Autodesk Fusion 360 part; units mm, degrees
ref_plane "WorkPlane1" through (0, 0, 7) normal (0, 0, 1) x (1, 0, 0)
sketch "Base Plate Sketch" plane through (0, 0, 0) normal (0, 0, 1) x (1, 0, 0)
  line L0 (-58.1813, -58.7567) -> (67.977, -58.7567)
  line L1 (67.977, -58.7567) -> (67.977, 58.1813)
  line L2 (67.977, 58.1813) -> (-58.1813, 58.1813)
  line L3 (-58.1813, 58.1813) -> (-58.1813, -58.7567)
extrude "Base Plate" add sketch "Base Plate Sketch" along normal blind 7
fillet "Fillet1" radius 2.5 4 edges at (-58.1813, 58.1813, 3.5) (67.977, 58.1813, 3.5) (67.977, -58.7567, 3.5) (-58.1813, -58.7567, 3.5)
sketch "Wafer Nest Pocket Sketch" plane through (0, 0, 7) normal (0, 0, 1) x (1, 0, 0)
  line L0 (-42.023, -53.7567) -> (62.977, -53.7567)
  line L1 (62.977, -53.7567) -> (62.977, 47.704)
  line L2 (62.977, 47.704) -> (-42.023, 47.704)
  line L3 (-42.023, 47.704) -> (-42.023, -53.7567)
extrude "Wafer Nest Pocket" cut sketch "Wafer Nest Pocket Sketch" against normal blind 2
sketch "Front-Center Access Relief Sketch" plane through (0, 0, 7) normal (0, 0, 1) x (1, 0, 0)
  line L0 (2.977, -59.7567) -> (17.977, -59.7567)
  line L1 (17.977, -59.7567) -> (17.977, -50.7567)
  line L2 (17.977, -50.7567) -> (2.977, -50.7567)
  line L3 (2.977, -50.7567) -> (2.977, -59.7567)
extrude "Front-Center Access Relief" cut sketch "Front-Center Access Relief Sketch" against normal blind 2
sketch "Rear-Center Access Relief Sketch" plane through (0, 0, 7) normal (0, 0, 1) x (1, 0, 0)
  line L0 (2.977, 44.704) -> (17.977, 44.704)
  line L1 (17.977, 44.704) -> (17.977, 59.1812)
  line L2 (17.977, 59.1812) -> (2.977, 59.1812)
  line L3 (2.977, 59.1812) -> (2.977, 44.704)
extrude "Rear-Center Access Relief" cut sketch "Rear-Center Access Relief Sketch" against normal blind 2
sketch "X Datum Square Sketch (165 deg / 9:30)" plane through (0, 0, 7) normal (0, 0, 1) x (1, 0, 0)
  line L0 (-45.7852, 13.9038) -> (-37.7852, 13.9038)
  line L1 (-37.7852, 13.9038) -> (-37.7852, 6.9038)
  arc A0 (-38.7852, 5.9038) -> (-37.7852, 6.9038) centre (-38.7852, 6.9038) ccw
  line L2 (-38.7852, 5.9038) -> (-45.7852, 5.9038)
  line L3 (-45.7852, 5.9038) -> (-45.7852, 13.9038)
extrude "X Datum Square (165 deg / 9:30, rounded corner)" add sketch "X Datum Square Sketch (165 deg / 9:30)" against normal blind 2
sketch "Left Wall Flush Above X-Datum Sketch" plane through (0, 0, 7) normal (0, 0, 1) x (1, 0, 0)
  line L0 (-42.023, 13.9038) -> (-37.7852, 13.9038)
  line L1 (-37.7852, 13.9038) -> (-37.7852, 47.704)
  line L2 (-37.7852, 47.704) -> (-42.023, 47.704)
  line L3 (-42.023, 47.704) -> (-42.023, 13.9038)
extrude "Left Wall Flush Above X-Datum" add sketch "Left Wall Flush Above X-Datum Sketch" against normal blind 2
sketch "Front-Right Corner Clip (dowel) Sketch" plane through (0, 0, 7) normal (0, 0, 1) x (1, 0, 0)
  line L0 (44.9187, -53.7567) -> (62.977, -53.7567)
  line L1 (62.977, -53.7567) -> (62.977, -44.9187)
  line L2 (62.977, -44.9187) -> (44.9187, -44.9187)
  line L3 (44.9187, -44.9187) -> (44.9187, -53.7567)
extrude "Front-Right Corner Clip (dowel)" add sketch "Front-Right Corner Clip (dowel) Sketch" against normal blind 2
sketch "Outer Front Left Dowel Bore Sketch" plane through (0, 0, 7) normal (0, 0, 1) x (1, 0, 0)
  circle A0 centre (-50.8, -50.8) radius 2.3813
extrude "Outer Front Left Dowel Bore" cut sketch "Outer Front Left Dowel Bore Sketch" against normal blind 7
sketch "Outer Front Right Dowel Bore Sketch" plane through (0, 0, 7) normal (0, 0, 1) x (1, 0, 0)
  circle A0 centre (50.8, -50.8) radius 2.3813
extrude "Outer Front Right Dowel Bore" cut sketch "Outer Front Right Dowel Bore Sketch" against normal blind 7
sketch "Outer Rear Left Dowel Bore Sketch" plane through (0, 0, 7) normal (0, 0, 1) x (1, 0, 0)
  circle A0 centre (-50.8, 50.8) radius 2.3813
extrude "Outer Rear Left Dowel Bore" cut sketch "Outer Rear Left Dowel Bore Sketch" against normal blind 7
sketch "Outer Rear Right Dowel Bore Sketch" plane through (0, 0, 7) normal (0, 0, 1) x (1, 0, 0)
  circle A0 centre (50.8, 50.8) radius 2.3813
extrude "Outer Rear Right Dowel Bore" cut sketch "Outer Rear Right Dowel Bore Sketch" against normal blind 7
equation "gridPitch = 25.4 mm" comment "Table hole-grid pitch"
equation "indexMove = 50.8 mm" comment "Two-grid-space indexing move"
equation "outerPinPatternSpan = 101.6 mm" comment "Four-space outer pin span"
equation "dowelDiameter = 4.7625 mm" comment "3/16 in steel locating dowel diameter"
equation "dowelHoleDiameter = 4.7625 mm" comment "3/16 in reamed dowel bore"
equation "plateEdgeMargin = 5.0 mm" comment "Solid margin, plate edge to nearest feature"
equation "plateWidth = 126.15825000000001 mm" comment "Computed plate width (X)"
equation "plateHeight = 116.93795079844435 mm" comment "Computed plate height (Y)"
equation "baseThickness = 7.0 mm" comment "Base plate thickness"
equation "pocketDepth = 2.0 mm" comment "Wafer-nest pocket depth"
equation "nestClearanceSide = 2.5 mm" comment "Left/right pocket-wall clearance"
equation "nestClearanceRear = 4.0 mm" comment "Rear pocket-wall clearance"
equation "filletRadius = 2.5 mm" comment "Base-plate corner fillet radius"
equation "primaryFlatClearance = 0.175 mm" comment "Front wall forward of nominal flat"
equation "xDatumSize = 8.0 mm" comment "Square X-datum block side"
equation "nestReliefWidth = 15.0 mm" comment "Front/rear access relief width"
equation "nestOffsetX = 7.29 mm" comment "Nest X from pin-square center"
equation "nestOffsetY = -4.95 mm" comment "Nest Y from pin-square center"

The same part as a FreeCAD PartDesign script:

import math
import FreeCAD as App
import Part
import Sketcher


def edges_at(feature, points):
    """Names of the edges that pass closest to the given points."""
    edges = feature.Shape.Edges
    near = lambda p: min(range(len(edges)), key=lambda i: edges[i].distToShape(Part.Vertex(*p))[0])
    return sorted({f"Edge{near(p) + 1}" for p in points})

doc = App.newDocument("Part")
body = doc.addObject("PartDesign::Body", "Body")

# Sketch on XY plane
sketch1 = body.newObject("Sketcher::SketchObject", "Sketch")
sketch1.AttachmentSupport = (doc.getObject("XY_Plane"), [""])
sketch1.MapMode = "FlatFace"
sketch1.addGeometry([
    Part.LineSegment(App.Vector(-58, 58, 0), App.Vector(-58, -59, 0)),
    Part.LineSegment(App.Vector(-58, -59, 0), App.Vector(68, -59, 0)),
    Part.LineSegment(App.Vector(68, -59, 0), App.Vector(68, 58, 0)),
    Part.LineSegment(App.Vector(68, 58, 0), App.Vector(-58, 58, 0)),
], False)
sketch1.addConstraint([
    Sketcher.Constraint("Coincident", 0, 2, 1, 1),
    Sketcher.Constraint("Coincident", 1, 2, 2, 1),
    Sketcher.Constraint("Coincident", 2, 2, 3, 1),
    Sketcher.Constraint("Coincident", 3, 2, 0, 1),
    Sketcher.Constraint("Vertical", 0),
    Sketcher.Constraint("Horizontal", 1),
    Sketcher.Constraint("Vertical", 2),
    Sketcher.Constraint("Horizontal", 3),
    Sketcher.Constraint("DistanceY", 0, 2, 0, 1, 116.938),
    Sketcher.Constraint("DistanceX", 1, 1, 1, 2, 126.1583),
    Sketcher.Constraint("DistanceX", -1, 1, 1, 2, 67.977),
    Sketcher.Constraint("DistanceY", 0, 2, -1, 1, 58.7567),
])
pad1 = body.newObject("PartDesign::Pad", "Pad")
pad1.Profile = sketch1
pad1.Length = 7
doc.recompute()

fillet = body.newObject("PartDesign::Fillet", "Fillet")
fillet.Base = (pad1, edges_at(pad1, [
    (-58.181, 58.181, 3.5),
    (67.977, 58.181, 3.5),
    (67.977, -58.757, 3.5),
    (-58.181, -58.757, 3.5),
]))
fillet.Radius = 2.5

# Sketch on XY plane
sketch2 = body.newObject("Sketcher::SketchObject", "Sketch001")
sketch2.AttachmentSupport = (doc.getObject("XY_Plane"), [""])
sketch2.MapMode = "FlatFace"
sketch2.AttachmentOffset = App.Placement(App.Vector(0, 0, 7), App.Rotation())
sketch2.addGeometry([
    Part.LineSegment(App.Vector(-42, 48, 0), App.Vector(-42, -54, 0)),
    Part.LineSegment(App.Vector(-42, -54, 0), App.Vector(63, -54, 0)),
    Part.LineSegment(App.Vector(63, -54, 0), App.Vector(63, 48, 0)),
    Part.LineSegment(App.Vector(63, 48, 0), App.Vector(-42, 48, 0)),
], False)
sketch2.addConstraint([
    Sketcher.Constraint("Coincident", 0, 2, 1, 1),
    Sketcher.Constraint("Coincident", 1, 2, 2, 1),
    Sketcher.Constraint("Coincident", 2, 2, 3, 1),
    Sketcher.Constraint("Coincident", 3, 2, 0, 1),
    Sketcher.Constraint("Vertical", 0),
    Sketcher.Constraint("Horizontal", 1),
    Sketcher.Constraint("Vertical", 2),
    Sketcher.Constraint("Horizontal", 3),
    Sketcher.Constraint("DistanceX", 1, 1, 1, 2, 105.0),
    Sketcher.Constraint("DistanceY", 0, 2, 0, 1, 101.4607),
    Sketcher.Constraint("DistanceX", 0, 2, -1, 1, 42.023),
    Sketcher.Constraint("DistanceY", -1, 1, 2, 2, 47.704),
])
pocket1 = body.newObject("PartDesign::Pocket", "Pocket")
pocket1.Profile = sketch2
pocket1.Length = 2

# Sketch on XY plane
sketch3 = body.newObject("Sketcher::SketchObject", "Sketch002")
sketch3.AttachmentSupport = (doc.getObject("XY_Plane"), [""])
sketch3.MapMode = "FlatFace"
sketch3.AttachmentOffset = App.Placement(App.Vector(0, 0, 7), App.Rotation())
sketch3.addGeometry([
    Part.LineSegment(App.Vector(3, -51, 0), App.Vector(3, -60, 0)),
    Part.LineSegment(App.Vector(3, -60, 0), App.Vector(18, -60, 0)),
    Part.LineSegment(App.Vector(18, -60, 0), App.Vector(18, -51, 0)),
    Part.LineSegment(App.Vector(18, -51, 0), App.Vector(3, -51, 0)),
], False)
sketch3.addConstraint([
    Sketcher.Constraint("Coincident", 0, 2, 1, 1),
    Sketcher.Constraint("Coincident", 1, 2, 2, 1),
    Sketcher.Constraint("Coincident", 2, 2, 3, 1),
    Sketcher.Constraint("Coincident", 3, 2, 0, 1),
    Sketcher.Constraint("Vertical", 0),
    Sketcher.Constraint("Horizontal", 1),
    Sketcher.Constraint("Vertical", 2),
    Sketcher.Constraint("Horizontal", 3),
    Sketcher.Constraint("DistanceX", 1, 1, 1, 2, 15.0),
    Sketcher.Constraint("DistanceY", 0, 2, 0, 1, 9.0),
    Sketcher.Constraint("DistanceX", -1, 1, 0, 2, 2.977),
    Sketcher.Constraint("DistanceY", 0, 2, -1, 1, 59.7567),
])
pocket2 = body.newObject("PartDesign::Pocket", "Pocket001")
pocket2.Profile = sketch3
pocket2.Length = 2

# Sketch on XY plane
sketch4 = body.newObject("Sketcher::SketchObject", "Sketch003")
sketch4.AttachmentSupport = (doc.getObject("XY_Plane"), [""])
sketch4.MapMode = "FlatFace"
sketch4.AttachmentOffset = App.Placement(App.Vector(0, 0, 7), App.Rotation())
sketch4.addGeometry([
    Part.LineSegment(App.Vector(3, 59, 0), App.Vector(3, 45, 0)),
    Part.LineSegment(App.Vector(3, 45, 0), App.Vector(18, 45, 0)),
    Part.LineSegment(App.Vector(18, 45, 0), App.Vector(18, 59, 0)),
    Part.LineSegment(App.Vector(18, 59, 0), App.Vector(3, 59, 0)),
], False)
sketch4.addConstraint([
    Sketcher.Constraint("Coincident", 0, 2, 1, 1),
    Sketcher.Constraint("Coincident", 1, 2, 2, 1),
    Sketcher.Constraint("Coincident", 2, 2, 3, 1),
    Sketcher.Constraint("Coincident", 3, 2, 0, 1),
    Sketcher.Constraint("Vertical", 0),
    Sketcher.Constraint("Horizontal", 1),
    Sketcher.Constraint("Vertical", 2),
    Sketcher.Constraint("Horizontal", 3),
    Sketcher.Constraint("DistanceX", 1, 1, 1, 2, 15.0),
    Sketcher.Constraint("DistanceY", 0, 2, 0, 1, 14.4772),
    Sketcher.Constraint("DistanceX", -1, 1, 0, 2, 2.977),
    Sketcher.Constraint("DistanceY", -1, 1, 0, 2, 44.704),
])
pocket3 = body.newObject("PartDesign::Pocket", "Pocket002")
pocket3.Profile = sketch4
pocket3.Length = 2

# Sketch on XY plane
sketch5 = body.newObject("Sketcher::SketchObject", "Sketch004")
sketch5.AttachmentSupport = (doc.getObject("XY_Plane"), [""])
sketch5.MapMode = "FlatFace"
sketch5.AttachmentOffset = App.Placement(App.Vector(0, 0, 7), App.Rotation())
sketch5.addGeometry([
    Part.LineSegment(App.Vector(-37.8, 13.9, 0), App.Vector(-45.8, 13.9, 0)),  # 0
    Part.LineSegment(App.Vector(-45.8, 13.9, 0), App.Vector(-45.8, 5.9, 0)),  # 1
    Part.LineSegment(App.Vector(-45.8, 5.9, 0), App.Vector(-38.8, 5.9, 0)),  # 2
    Part.ArcOfCircle(Part.Circle(App.Vector(-38.8, 6.9, 0), App.Vector(0, 0, 1), 1), math.radians(-90), math.radians(0)),  # 3
    Part.LineSegment(App.Vector(-37.8, 6.9, 0), App.Vector(-37.8, 13.9, 0)),  # 4
], False)
sketch5.addConstraint([
    Sketcher.Constraint("Coincident", 0, 2, 1, 1),
    Sketcher.Constraint("Coincident", 1, 2, 2, 1),
    Sketcher.Constraint("Tangent", 2, 2, 3, 1),
    Sketcher.Constraint("Tangent", 3, 2, 4, 1),
    Sketcher.Constraint("Coincident", 4, 2, 0, 1),
    Sketcher.Constraint("Horizontal", 0),
    Sketcher.Constraint("Vertical", 1),
    Sketcher.Constraint("Horizontal", 2),
    Sketcher.Constraint("Vertical", 4),
    Sketcher.Constraint("Equal", 0, 1),
    Sketcher.Constraint("Radius", 3, 1.0),
    Sketcher.Constraint("DistanceX", 0, 2, 0, 1, 8.0),
    Sketcher.Constraint("DistanceX", 3, 3, -1, 1, 38.7852),
    Sketcher.Constraint("DistanceY", -1, 1, 3, 3, 6.9038),
])
pad2 = body.newObject("PartDesign::Pad", "Pad001")
pad2.Profile = sketch5
pad2.Length = 2
pad2.Reversed = True

# Sketch on XY plane
sketch6 = body.newObject("Sketcher::SketchObject", "Sketch005")
sketch6.AttachmentSupport = (doc.getObject("XY_Plane"), [""])
sketch6.MapMode = "FlatFace"
sketch6.AttachmentOffset = App.Placement(App.Vector(0, 0, 7), App.Rotation())
sketch6.addGeometry([
    Part.LineSegment(App.Vector(-42, 47.7, 0), App.Vector(-42, 13.9, 0)),
    Part.LineSegment(App.Vector(-42, 13.9, 0), App.Vector(-37.8, 13.9, 0)),
    Part.LineSegment(App.Vector(-37.8, 13.9, 0), App.Vector(-37.8, 47.7, 0)),
    Part.LineSegment(App.Vector(-37.8, 47.7, 0), App.Vector(-42, 47.7, 0)),
], False)
sketch6.addConstraint([
    Sketcher.Constraint("Coincident", 0, 2, 1, 1),
    Sketcher.Constraint("Coincident", 1, 2, 2, 1),
    Sketcher.Constraint("Coincident", 2, 2, 3, 1),
    Sketcher.Constraint("Coincident", 3, 2, 0, 1),
    Sketcher.Constraint("Vertical", 0),
    Sketcher.Constraint("Horizontal", 1),
    Sketcher.Constraint("Vertical", 2),
    Sketcher.Constraint("Horizontal", 3),
    Sketcher.Constraint("DistanceX", 1, 1, 1, 2, 4.2378),
    Sketcher.Constraint("DistanceY", 0, 2, 0, 1, 33.8002),
    Sketcher.Constraint("DistanceX", 0, 2, -1, 1, 42.023),
    Sketcher.Constraint("DistanceY", -1, 1, 2, 2, 47.704),
])
pad3 = body.newObject("PartDesign::Pad", "Pad002")
pad3.Profile = sketch6
pad3.Length = 2
pad3.Reversed = True

# Sketch on XY plane
sketch7 = body.newObject("Sketcher::SketchObject", "Sketch006")
sketch7.AttachmentSupport = (doc.getObject("XY_Plane"), [""])
sketch7.MapMode = "FlatFace"
sketch7.AttachmentOffset = App.Placement(App.Vector(0, 0, 7), App.Rotation())
sketch7.addGeometry([
    Part.LineSegment(App.Vector(45, -45, 0), App.Vector(45, -54, 0)),
    Part.LineSegment(App.Vector(45, -54, 0), App.Vector(63, -54, 0)),
    Part.LineSegment(App.Vector(63, -54, 0), App.Vector(63, -45, 0)),
    Part.LineSegment(App.Vector(63, -45, 0), App.Vector(45, -45, 0)),
], False)
sketch7.addConstraint([
    Sketcher.Constraint("Coincident", 0, 2, 1, 1),
    Sketcher.Constraint("Coincident", 1, 2, 2, 1),
    Sketcher.Constraint("Coincident", 2, 2, 3, 1),
    Sketcher.Constraint("Coincident", 3, 2, 0, 1),
    Sketcher.Constraint("Vertical", 0),
    Sketcher.Constraint("Horizontal", 1),
    Sketcher.Constraint("Vertical", 2),
    Sketcher.Constraint("Horizontal", 3),
    Sketcher.Constraint("DistanceY", 0, 2, 0, 1, 8.838),
    Sketcher.Constraint("DistanceX", 1, 1, 1, 2, 18.0583),
    Sketcher.Constraint("DistanceX", -1, 1, 1, 2, 62.977),
    Sketcher.Constraint("DistanceY", 0, 2, -1, 1, 53.7567),
])
pad4 = body.newObject("PartDesign::Pad", "Pad003")
pad4.Profile = sketch7
pad4.Length = 2
pad4.Reversed = True

# Sketch on XY plane
sketch8 = body.newObject("Sketcher::SketchObject", "Sketch007")
sketch8.AttachmentSupport = (doc.getObject("XY_Plane"), [""])
sketch8.MapMode = "FlatFace"
sketch8.AttachmentOffset = App.Placement(App.Vector(0, 0, 7), App.Rotation())
sketch8.addGeometry(Part.Circle(App.Vector(-50.8, -50.8, 0), App.Vector(0, 0, 1), 2.4), False)
sketch8.addConstraint([
    Sketcher.Constraint("Diameter", 0, 4.7626),
    Sketcher.Constraint("DistanceX", 0, 3, -1, 1, 50.8),
    Sketcher.Constraint("DistanceY", 0, 3, -1, 1, 50.8),
])
pocket4 = body.newObject("PartDesign::Pocket", "Pocket003")
pocket4.Profile = sketch8
pocket4.Length = 7

# Sketch on XY plane
sketch9 = body.newObject("Sketcher::SketchObject", "Sketch008")
sketch9.AttachmentSupport = (doc.getObject("XY_Plane"), [""])
sketch9.MapMode = "FlatFace"
sketch9.AttachmentOffset = App.Placement(App.Vector(0, 0, 7), App.Rotation())
sketch9.addGeometry(Part.Circle(App.Vector(50.8, -50.8, 0), App.Vector(0, 0, 1), 2.4), False)
sketch9.addConstraint([
    Sketcher.Constraint("Diameter", 0, 4.7626),
    Sketcher.Constraint("DistanceX", -1, 1, 0, 3, 50.8),
    Sketcher.Constraint("DistanceY", 0, 3, -1, 1, 50.8),
])
pocket5 = body.newObject("PartDesign::Pocket", "Pocket004")
pocket5.Profile = sketch9
pocket5.Length = 7

# Sketch on XY plane
sketch10 = body.newObject("Sketcher::SketchObject", "Sketch009")
sketch10.AttachmentSupport = (doc.getObject("XY_Plane"), [""])
sketch10.MapMode = "FlatFace"
sketch10.AttachmentOffset = App.Placement(App.Vector(0, 0, 7), App.Rotation())
sketch10.addGeometry(Part.Circle(App.Vector(-50.8, 50.8, 0), App.Vector(0, 0, 1), 2.4), False)
sketch10.addConstraint([
    Sketcher.Constraint("Diameter", 0, 4.7626),
    Sketcher.Constraint("DistanceX", 0, 3, -1, 1, 50.8),
    Sketcher.Constraint("DistanceY", -1, 1, 0, 3, 50.8),
])
pocket6 = body.newObject("PartDesign::Pocket", "Pocket005")
pocket6.Profile = sketch10
pocket6.Length = 7

# Sketch on XY plane
sketch11 = body.newObject("Sketcher::SketchObject", "Sketch010")
sketch11.AttachmentSupport = (doc.getObject("XY_Plane"), [""])
sketch11.MapMode = "FlatFace"
sketch11.AttachmentOffset = App.Placement(App.Vector(0, 0, 7), App.Rotation())
sketch11.addGeometry(Part.Circle(App.Vector(50.8, 50.8, 0), App.Vector(0, 0, 1), 2.4), False)
sketch11.addConstraint([
    Sketcher.Constraint("Diameter", 0, 4.7626),
    Sketcher.Constraint("DistanceX", -1, 1, 0, 3, 50.8),
    Sketcher.Constraint("DistanceY", -1, 1, 0, 3, 50.8),
])
pocket7 = body.newObject("PartDesign::Pocket", "Pocket006")
pocket7.Profile = sketch11
pocket7.Length = 7

doc.recompute()
